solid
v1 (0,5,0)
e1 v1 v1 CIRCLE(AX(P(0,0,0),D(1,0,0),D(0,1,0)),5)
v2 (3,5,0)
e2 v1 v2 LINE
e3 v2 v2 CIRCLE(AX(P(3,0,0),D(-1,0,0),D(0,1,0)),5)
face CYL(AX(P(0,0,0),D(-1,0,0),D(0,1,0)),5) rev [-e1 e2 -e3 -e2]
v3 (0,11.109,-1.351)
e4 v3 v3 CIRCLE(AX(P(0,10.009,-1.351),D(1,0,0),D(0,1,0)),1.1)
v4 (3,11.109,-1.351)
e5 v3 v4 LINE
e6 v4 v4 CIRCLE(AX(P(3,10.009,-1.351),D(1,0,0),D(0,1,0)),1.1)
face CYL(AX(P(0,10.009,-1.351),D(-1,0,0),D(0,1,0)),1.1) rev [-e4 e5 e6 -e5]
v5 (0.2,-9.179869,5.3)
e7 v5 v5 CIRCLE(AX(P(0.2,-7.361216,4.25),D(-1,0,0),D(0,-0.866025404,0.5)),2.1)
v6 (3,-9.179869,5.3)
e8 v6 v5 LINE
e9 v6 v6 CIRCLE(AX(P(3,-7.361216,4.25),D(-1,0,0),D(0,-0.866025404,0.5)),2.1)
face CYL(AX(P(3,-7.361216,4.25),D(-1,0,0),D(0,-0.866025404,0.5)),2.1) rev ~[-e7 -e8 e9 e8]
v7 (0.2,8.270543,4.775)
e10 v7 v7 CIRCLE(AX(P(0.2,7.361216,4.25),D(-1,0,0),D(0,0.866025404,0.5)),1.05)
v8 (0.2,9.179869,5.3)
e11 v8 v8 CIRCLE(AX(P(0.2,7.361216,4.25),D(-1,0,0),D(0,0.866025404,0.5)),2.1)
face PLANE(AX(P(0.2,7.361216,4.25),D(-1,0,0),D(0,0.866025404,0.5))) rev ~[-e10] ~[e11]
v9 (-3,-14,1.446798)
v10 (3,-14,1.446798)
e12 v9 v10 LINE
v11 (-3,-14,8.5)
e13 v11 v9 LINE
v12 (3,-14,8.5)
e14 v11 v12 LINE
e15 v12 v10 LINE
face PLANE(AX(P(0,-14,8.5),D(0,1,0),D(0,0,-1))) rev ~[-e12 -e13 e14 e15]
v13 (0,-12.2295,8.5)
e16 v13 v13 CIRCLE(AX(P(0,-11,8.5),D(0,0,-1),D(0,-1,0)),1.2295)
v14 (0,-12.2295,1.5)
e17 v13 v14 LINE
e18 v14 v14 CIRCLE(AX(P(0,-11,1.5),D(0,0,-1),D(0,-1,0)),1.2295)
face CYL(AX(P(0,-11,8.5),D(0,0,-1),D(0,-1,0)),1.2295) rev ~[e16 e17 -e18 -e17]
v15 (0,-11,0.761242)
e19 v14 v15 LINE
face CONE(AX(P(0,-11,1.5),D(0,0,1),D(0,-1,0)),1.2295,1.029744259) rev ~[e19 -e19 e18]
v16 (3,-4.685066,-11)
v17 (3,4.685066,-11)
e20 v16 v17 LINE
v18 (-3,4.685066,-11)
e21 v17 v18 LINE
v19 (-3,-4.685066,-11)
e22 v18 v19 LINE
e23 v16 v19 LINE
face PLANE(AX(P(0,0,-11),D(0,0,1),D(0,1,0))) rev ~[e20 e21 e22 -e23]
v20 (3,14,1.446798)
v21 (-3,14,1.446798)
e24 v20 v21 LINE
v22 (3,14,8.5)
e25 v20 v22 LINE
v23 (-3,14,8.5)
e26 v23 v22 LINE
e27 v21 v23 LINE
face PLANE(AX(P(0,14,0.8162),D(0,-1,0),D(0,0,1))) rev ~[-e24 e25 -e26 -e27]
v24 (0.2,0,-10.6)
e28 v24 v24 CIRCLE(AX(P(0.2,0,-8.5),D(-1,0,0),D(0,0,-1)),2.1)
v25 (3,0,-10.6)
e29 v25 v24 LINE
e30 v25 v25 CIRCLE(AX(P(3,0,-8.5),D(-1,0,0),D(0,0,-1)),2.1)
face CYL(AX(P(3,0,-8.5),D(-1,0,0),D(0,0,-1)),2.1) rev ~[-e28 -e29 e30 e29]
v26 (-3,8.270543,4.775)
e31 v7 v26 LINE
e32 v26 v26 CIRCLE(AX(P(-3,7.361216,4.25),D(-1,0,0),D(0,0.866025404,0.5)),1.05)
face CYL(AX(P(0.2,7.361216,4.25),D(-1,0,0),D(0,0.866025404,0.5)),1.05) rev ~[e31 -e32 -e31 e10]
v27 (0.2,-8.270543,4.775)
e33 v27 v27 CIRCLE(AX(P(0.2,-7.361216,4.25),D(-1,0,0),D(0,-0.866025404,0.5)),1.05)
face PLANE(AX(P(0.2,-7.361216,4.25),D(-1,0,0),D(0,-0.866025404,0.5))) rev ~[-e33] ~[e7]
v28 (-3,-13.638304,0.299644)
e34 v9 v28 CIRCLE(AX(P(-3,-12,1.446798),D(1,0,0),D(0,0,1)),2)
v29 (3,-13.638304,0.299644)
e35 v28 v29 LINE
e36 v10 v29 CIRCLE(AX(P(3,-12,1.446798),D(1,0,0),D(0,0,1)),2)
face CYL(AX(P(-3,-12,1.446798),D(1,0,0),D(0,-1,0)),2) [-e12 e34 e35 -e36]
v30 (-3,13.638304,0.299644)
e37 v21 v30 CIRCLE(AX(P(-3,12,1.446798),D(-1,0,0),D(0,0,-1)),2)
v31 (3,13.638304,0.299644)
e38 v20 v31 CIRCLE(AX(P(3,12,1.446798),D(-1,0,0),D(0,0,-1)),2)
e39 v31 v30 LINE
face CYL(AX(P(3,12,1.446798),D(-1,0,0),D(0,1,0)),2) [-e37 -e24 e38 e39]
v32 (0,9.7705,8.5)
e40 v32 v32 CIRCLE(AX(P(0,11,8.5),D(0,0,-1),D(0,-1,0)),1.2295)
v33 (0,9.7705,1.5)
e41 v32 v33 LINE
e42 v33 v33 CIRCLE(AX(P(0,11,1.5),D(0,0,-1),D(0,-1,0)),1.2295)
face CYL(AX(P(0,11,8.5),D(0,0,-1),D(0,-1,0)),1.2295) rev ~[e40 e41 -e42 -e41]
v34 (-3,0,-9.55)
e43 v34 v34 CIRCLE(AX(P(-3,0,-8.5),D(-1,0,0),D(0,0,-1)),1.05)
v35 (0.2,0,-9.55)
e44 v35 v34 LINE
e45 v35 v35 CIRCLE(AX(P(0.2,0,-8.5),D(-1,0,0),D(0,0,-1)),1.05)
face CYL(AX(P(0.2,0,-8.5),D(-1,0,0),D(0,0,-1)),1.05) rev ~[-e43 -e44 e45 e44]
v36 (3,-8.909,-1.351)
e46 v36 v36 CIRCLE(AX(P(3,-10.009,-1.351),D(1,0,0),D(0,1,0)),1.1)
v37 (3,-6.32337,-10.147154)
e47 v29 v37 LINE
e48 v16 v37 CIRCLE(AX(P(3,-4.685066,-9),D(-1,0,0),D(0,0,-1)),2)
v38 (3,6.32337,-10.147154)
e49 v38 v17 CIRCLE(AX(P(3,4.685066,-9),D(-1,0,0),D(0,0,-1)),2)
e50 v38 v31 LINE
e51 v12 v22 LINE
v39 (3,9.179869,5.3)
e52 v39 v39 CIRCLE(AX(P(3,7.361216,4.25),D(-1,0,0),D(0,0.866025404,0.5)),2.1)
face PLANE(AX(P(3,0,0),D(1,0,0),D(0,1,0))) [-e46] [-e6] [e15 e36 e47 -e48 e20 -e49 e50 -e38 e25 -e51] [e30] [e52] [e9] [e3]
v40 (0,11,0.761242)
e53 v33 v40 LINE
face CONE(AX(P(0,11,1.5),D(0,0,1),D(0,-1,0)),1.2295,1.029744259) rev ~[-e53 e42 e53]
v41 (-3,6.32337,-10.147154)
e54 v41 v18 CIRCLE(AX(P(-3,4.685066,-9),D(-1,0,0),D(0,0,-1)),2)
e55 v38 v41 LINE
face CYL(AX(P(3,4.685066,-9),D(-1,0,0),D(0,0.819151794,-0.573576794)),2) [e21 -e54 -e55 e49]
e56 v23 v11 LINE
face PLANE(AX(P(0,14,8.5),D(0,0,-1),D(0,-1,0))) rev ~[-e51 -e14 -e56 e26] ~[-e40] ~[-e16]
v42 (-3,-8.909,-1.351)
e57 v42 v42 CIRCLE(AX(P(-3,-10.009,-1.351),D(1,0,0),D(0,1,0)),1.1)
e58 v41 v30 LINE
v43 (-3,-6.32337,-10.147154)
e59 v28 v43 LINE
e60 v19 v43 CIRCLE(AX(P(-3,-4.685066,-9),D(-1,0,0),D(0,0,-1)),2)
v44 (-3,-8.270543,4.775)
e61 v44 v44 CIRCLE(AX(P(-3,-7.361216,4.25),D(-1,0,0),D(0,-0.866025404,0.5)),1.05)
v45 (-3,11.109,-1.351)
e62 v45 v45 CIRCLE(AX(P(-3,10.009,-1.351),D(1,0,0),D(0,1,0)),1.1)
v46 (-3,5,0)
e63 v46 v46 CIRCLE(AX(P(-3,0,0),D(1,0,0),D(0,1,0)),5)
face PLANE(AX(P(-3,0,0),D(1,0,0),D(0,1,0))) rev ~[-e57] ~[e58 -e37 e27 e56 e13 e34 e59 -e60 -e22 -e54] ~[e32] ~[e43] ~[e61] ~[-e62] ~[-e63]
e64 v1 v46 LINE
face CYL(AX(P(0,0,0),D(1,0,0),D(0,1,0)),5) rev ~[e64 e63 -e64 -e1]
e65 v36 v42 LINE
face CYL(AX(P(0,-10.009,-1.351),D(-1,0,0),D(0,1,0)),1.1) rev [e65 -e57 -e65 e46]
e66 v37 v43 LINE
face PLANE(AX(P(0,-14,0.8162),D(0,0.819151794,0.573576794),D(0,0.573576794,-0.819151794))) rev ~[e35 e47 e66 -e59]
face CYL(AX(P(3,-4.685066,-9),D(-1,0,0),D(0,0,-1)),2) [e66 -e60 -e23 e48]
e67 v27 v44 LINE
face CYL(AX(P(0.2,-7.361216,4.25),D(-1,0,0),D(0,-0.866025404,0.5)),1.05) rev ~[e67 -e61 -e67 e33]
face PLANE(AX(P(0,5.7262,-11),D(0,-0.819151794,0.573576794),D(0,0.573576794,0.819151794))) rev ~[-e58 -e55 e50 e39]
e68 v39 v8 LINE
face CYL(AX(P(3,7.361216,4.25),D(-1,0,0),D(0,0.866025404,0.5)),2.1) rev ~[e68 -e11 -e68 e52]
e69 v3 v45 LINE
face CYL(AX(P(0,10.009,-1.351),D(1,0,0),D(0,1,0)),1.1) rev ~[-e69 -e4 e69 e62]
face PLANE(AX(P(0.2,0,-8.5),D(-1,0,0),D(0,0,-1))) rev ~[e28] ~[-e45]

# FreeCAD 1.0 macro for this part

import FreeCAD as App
import Part
import Sketcher

V = App.Vector
Q = App.Units.Quantity


def edges_at(feature, points):
    """Names of the edges that pass closest to the given points."""
    edges = feature.Shape.Edges
    near = lambda p: min(range(len(edges)), key=lambda i: edges[i].distToShape(Part.Vertex(*p))[0])
    return sorted({f"Edge{near(p) + 1}" for p in points})

doc = App.newDocument("Part")
body = doc.addObject("PartDesign::Body", "Body")

# Sketch on YZ plane
sketch1 = doc.addObject("Sketcher::SketchObject", "Sketch")
body.addObject(sketch1)
sketch1.AttachmentSupport = (doc.YZ_Plane, [""])
sketch1.MapMode = "FlatFace"
sketch1.addGeometry(Part.LineSegment(V(14, 0.8, 0), V(14, 8.5, 0)), False)
sketch1.addGeometry(Part.LineSegment(V(14, 8.5, 0), V(-14, 8.5, 0)), False)
sketch1.addGeometry(Part.LineSegment(V(-14, 8.5, 0), V(-14, 0.8, 0)), False)
sketch1.addGeometry(Part.LineSegment(V(-14, 0.8, 0), V(-5.7, -11, 0)), False)
sketch1.addGeometry(Part.LineSegment(V(-5.7, -11, 0), V(5.7, -11, 0)), False)
sketch1.addGeometry(Part.LineSegment(V(5.7, -11, 0), V(14, 0.8, 0)), False)
sketch1.addGeometry(Part.Circle(V(0, 0, 0), V(0, 0, 1), 5), False)
sketch1.addGeometry(Part.Circle(V(10, -1.4, 0), V(0, 0, 1), 1.1), False)
sketch1.addGeometry(Part.Circle(V(-10, -1.4, 0), V(0, 0, 1), 1.1), False)
sketch1.addConstraint(Sketcher.Constraint("Coincident", 0, 2, 1, 1))
sketch1.addConstraint(Sketcher.Constraint("Coincident", 1, 2, 2, 1))
sketch1.addConstraint(Sketcher.Constraint("Coincident", 2, 2, 3, 1))
sketch1.addConstraint(Sketcher.Constraint("Coincident", 3, 2, 4, 1))
sketch1.addConstraint(Sketcher.Constraint("Coincident", 4, 2, 5, 1))
sketch1.addConstraint(Sketcher.Constraint("Coincident", 5, 2, 0, 1))
sketch1.addConstraint(Sketcher.Constraint("Vertical", 0))
sketch1.addConstraint(Sketcher.Constraint("Horizontal", 1))
sketch1.addConstraint(Sketcher.Constraint("Vertical", 2))
sketch1.addConstraint(Sketcher.Constraint("Horizontal", 4))
sketch1.addConstraint(Sketcher.Constraint("Coincident", 6, 3, -1, 1))
sketch1.addConstraint(Sketcher.Constraint("Equal", 7, 8))
sketch1.addConstraint(Sketcher.Constraint("Symmetric", 7, 3, 8, 3, -2))
sketch1.addConstraint(Sketcher.Constraint("Symmetric", 2, 2, 5, 2, -2))
sketch1.addConstraint(Sketcher.Constraint("Equal", 3, 5))
sketch1.addConstraint(Sketcher.Constraint("Diameter", 6, 10.0))
sketch1.addConstraint(Sketcher.Constraint("Diameter", 7, 2.2))
sketch1.addConstraint(Sketcher.Constraint("DistanceX", -1, 1, 0, 2, 14.0))
sketch1.addConstraint(Sketcher.Constraint("DistanceY", -1, 1, 0, 2, 8.5))
sketch1.addConstraint(Sketcher.Constraint("Angle", 3, Q("-55 deg")))
sketch1.addConstraint(Sketcher.Constraint("DistanceX", -1, 1, 7, 3, 10.009))
sketch1.addConstraint(Sketcher.Constraint("DistanceY", 7, 3, -1, 1, 1.351))
sketch1.addConstraint(Sketcher.Constraint("DistanceY", 3, 2, -1, 1, 11.0))
sketch1.addConstraint(Sketcher.Constraint("Distance", 3, 14.425))
pad1 = doc.addObject("PartDesign::Pad", "Pad")
body.addObject(pad1)
pad1.Profile = sketch1
pad1.Length = 6
pad1.Midplane = True

# Sketch on YZ plane
sketch2 = doc.addObject("Sketcher::SketchObject", "Sketch001")
body.addObject(sketch2)
sketch2.AttachmentSupport = (doc.YZ_Plane, [""])
sketch2.MapMode = "FlatFace"
sketch2.AttachmentOffset = App.Placement(V(0, 0, 3), App.Rotation())
sketch2.addGeometry(Part.Circle(V(0, -8.5, 0), V(0, 0, 1), 1.1), False)
sketch2.addConstraint(Sketcher.Constraint("PointOnObject", 0, 3, -2))
sketch2.addConstraint(Sketcher.Constraint("Diameter", 0, 2.1))
sketch2.addConstraint(Sketcher.Constraint("DistanceY", 0, 3, -1, 1, 8.5))
doc.recompute()
hole = doc.addObject("PartDesign::Hole", "Hole")
body.addObject(hole)
hole.Profile = sketch2
hole.ThreadType = "None"
hole.Diameter = 2.1
hole.DepthType = "ThroughAll"
hole.HoleCutType = "Counterbore"
hole.HoleCutDiameter = 4.2
hole.HoleCutDepth = 2.8
doc.recompute()

polarpattern = doc.addObject("PartDesign::PolarPattern", "PolarPattern")
body.addObject(polarpattern)
polarpattern.Originals = [hole]
polarpattern.Axis = (doc.X_Axis, [""])
polarpattern.Angle = 360
polarpattern.Occurrences = 3
body.Tip = polarpattern

# Sketch on XY plane
sketch3 = doc.addObject("Sketcher::SketchObject", "Sketch002")
body.addObject(sketch3)
sketch3.AttachmentSupport = (doc.XY_Plane, [""])
sketch3.MapMode = "FlatFace"
sketch3.AttachmentOffset = App.Placement(V(0, 0, 8.5), App.Rotation())
sketch3.addGeometry(Part.Circle(V(0, -11, 0), V(0, 0, 1), 1.2), False)
sketch3.addGeometry(Part.Circle(V(0, 11, 0), V(0, 0, 1), 1.2), False)
sketch3.addConstraint(Sketcher.Constraint("Equal", 0, 1))
sketch3.addConstraint(Sketcher.Constraint("Symmetric", 0, 3, 1, 3, -1, 1))
sketch3.addConstraint(Sketcher.Constraint("PointOnObject", 0, 3, -2))
sketch3.addConstraint(Sketcher.Constraint("Diameter", 0, 2.459))
sketch3.addConstraint(Sketcher.Constraint("DistanceY", 0, 3, -1, 1, 11.0))
doc.recompute()
hole2 = doc.addObject("PartDesign::Hole", "Hole001")
body.addObject(hole2)
hole2.Profile = sketch3
hole2.ThreadType = "None"
hole2.Diameter = 2.459
hole2.DepthType = "Dimension"
hole2.Depth = 7
hole2.DrillPoint = "Angled"
hole2.DrillPointAngle = 118
doc.recompute()

fillet = doc.addObject("PartDesign::Fillet", "Fillet")
body.addObject(fillet)
fillet.Base = (hole2, edges_at(hole2, [
    (0, -5.726, -11),
    (0, 5.726, -11),
    (0, -14, 0.816),
    (0, 14, 0.816),
]))
fillet.Radius = 2

doc.recompute()
